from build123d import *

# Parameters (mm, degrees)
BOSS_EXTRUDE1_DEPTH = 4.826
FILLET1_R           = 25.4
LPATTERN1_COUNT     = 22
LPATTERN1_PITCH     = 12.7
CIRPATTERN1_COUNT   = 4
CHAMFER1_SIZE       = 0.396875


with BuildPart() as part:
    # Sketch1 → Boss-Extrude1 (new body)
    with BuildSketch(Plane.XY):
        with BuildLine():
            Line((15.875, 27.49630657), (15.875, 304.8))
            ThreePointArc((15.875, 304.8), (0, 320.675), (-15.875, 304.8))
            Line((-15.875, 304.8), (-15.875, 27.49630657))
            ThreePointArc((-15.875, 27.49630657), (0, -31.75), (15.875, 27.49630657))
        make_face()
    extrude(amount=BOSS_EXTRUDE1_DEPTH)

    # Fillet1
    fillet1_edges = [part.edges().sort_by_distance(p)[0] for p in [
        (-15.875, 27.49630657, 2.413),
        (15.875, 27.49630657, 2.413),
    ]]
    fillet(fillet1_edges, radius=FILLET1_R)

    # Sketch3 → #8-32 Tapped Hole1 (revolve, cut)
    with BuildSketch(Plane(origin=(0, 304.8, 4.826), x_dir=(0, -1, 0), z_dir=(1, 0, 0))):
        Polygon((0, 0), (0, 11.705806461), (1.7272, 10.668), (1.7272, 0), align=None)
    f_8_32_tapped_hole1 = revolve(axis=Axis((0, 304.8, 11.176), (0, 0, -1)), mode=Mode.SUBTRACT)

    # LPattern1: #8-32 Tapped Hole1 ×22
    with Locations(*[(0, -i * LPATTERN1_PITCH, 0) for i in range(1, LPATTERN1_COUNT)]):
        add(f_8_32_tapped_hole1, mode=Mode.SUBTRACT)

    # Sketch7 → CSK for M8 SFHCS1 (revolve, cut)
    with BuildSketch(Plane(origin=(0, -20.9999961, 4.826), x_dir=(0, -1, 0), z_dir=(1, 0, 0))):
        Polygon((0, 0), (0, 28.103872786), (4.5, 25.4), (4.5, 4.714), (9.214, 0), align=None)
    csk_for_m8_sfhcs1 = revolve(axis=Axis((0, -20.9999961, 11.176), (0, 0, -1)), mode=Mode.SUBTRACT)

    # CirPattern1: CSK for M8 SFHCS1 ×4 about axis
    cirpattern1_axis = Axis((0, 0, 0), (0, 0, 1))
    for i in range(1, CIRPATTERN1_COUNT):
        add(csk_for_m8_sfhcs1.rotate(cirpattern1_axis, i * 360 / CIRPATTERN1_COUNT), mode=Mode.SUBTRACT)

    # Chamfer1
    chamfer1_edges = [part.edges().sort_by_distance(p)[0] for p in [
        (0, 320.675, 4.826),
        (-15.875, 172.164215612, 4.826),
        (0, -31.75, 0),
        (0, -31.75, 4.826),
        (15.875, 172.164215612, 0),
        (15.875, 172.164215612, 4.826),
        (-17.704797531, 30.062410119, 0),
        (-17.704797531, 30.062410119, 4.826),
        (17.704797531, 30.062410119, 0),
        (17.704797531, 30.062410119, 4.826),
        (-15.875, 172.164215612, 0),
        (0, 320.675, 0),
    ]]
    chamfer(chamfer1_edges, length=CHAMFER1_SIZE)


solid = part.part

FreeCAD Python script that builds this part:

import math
import FreeCAD as App
import Part
import Sketcher

V = App.Vector
Q = App.Units.Quantity


def edges_at(feature, points):
    """Names of the edges that pass closest to the given points."""
    edges = feature.Shape.Edges
    near = lambda p: min(range(len(edges)), key=lambda i: edges[i].distToShape(Part.Vertex(*p))[0])
    return sorted({f"Edge{near(p) + 1}" for p in points})

doc = App.newDocument("Part")
params = doc.addObject("Spreadsheet::Sheet", "Params")
for row, (alias, value) in enumerate([
    ("sketch1_radius", "1.25 in"),
    ("sketch1_radius2", "0.625 in"),
    ("pad1_length", "0.19 in"),
    ("fillet_radius", "1 in"),
    ("sketch2_height", "0.42 in"),
    ("sketch2_width", "0.068 in"),
    ("groove_angle", "360 deg"),
    ("linearpattern_pitch", "0.5 in"),
    ("groove2_angle", "360 deg"),
    ("chamfer_size", "0.015625 in"),
], start=1):
    params.set(f"A{row}", alias)
    params.set(f"B{row}", "=" + value)
    params.setAlias(f"B{row}", alias)

body = doc.addObject("PartDesign::Body", "Body")

sketch1 = body.newObject("Sketcher::SketchObject", "Sketch")
sketch1.AttachmentSupport = (doc.getObject("XY_Plane"), [""])
sketch1.MapMode = "FlatFace"
sketch1.addGeometry([
    Part.LineSegment(V(16, 27, 0), V(16, 305, 0)),
    Part.ArcOfCircle(Part.Circle(V(0, 305, 0), V(0, 0, 1), 16), math.radians(0), math.radians(180)),
    Part.LineSegment(V(-16, 305, 0), V(-16, 27, 0)),
    Part.ArcOfCircle(Part.Circle(V(0, 0, 0), V(0, 0, 1), 32), math.radians(120), math.radians(420)),
], False)
sketch1.addConstraint([
    Sketcher.Constraint("Tangent", 0, 2, 1, 1),
    Sketcher.Constraint("Tangent", 1, 2, 2, 1),
    Sketcher.Constraint("Coincident", 2, 2, 3, 1),
    Sketcher.Constraint("Coincident", 3, 2, 0, 1),
    Sketcher.Constraint("Vertical", 0),
    Sketcher.Constraint("Vertical", 2),
    Sketcher.Constraint("Coincident", 3, 3, -1, 1),
    Sketcher.Constraint("PointOnObject", 1, 3, -2),
    Sketcher.Constraint("Radius", 3, Q("1.25 in")),
    Sketcher.Constraint("DistanceY", -1, 1, 1, 3, Q("12 in")),
    Sketcher.Constraint("Radius", 1, Q("0.625 in")),
])
sketch1.setExpression("Constraints[8]", "Params.sketch1_radius")
sketch1.setExpression("Constraints[10]", "Params.sketch1_radius2")
pad1 = body.newObject("PartDesign::Pad", "Pad")
pad1.Profile = sketch1
pad1.setExpression("Length", "Params.pad1_length")
doc.recompute()

fillet = body.newObject("PartDesign::Fillet", "Fillet")
fillet.Base = (pad1, edges_at(pad1, [(-15.875, 27.496, 2.413), (15.875, 27.496, 2.413)]))
fillet.setExpression("Radius", "Params.fillet_radius")

sketch2 = body.newObject("Sketcher::SketchObject", "Sketch001")
sketch2.AttachmentSupport = (doc.getObject("YZ_Plane"), [""])
sketch2.MapMode = "FlatFace"
sketch2.addGeometry([
    Part.LineSegment(V(304.8, -6.9, 0), V(304.8, 4.8, 0)),
    Part.LineSegment(V(304.8, 4.8, 0), V(303.1, 4.8, 0)),
    Part.LineSegment(V(303.1, 4.8, 0), V(303.1, -5.8, 0)),
    Part.LineSegment(V(303.1, -5.8, 0), V(304.8, -6.9, 0)),
], False)
sketch2.addGeometry(Part.LineSegment(V(304.8, 4.8, 0), V(304.8, -6.9, 0)), True)
sketch2.addConstraint([
    Sketcher.Constraint("Coincident", 0, 2, 1, 1),
    Sketcher.Constraint("Coincident", 1, 2, 2, 1),
    Sketcher.Constraint("Coincident", 2, 2, 3, 1),
    Sketcher.Constraint("Coincident", 3, 2, 0, 1),
    Sketcher.Constraint("Vertical", 0),
    Sketcher.Constraint("Horizontal", 1),
    Sketcher.Constraint("Vertical", 2),
    Sketcher.Constraint("Vertical", 4),
    Sketcher.Constraint("Coincident", 4, 1, 0, 2),
    Sketcher.Constraint("Equal", 0, 4),
    Sketcher.Constraint("DistanceX", -1, 1, 0, 2, Q("12 in")),
    Sketcher.Constraint("Angle", 3, Q("-31 deg")),
    Sketcher.Constraint("DistanceY", 2, 2, 2, 1, Q("0.42 in")),
    Sketcher.Constraint("DistanceX", 1, 2, 1, 1, Q("0.068 in")),
    Sketcher.Constraint("DistanceY", -1, 1, 0, 2, Q("0.19 in")),
])
sketch2.setExpression("Constraints[12]", "Params.sketch2_height")
sketch2.setExpression("Constraints[13]", "Params.sketch2_width")
groove = body.newObject("PartDesign::Groove", "Groove")
groove.Profile = sketch2
groove.ReferenceAxis = (sketch2, ["Axis0"])
groove.setExpression("Angle", "Params.groove_angle")
doc.recompute()

linearpattern = body.newObject("PartDesign::LinearPattern", "LinearPattern")
linearpattern.Originals = [groove]
linearpattern.Direction = (doc.getObject("Y_Axis"), [""])
linearpattern.Mode = "offset"
linearpattern.setExpression("Offset", "Params.linearpattern_pitch")
linearpattern.Occurrences = 22
linearpattern.Reversed = True
body.Tip = linearpattern

sketch3 = body.newObject("Sketcher::SketchObject", "Sketch002")
sketch3.AttachmentSupport = (doc.getObject("YZ_Plane"), [""])
sketch3.MapMode = "FlatFace"
sketch3.addGeometry([
    Part.LineSegment(V(-21, -23, 0), V(-21, 5, 0)),
    Part.LineSegment(V(-21, 5, 0), V(-30, 5, 0)),
    Part.LineSegment(V(-30, 5, 0), V(-25, 0, 0)),
    Part.LineSegment(V(-25, 0, 0), V(-25, -21, 0)),
    Part.LineSegment(V(-25, -21, 0), V(-21, -23, 0)),
], False)
sketch3.addGeometry(Part.LineSegment(V(-21, 5, 0), V(-21, -23, 0)), True)
sketch3.addConstraint([
    Sketcher.Constraint("Coincident", 0, 2, 1, 1),
    Sketcher.Constraint("Coincident", 1, 2, 2, 1),
    Sketcher.Constraint("Coincident", 2, 2, 3, 1),
    Sketcher.Constraint("Coincident", 3, 2, 4, 1),
    Sketcher.Constraint("Coincident", 4, 2, 0, 1),
    Sketcher.Constraint("Vertical", 0),
    Sketcher.Constraint("Horizontal", 1),
    Sketcher.Constraint("Vertical", 3),
    Sketcher.Constraint("Vertical", 5),
    Sketcher.Constraint("Coincident", 5, 1, 0, 2),
    Sketcher.Constraint("Equal", 0, 5),
    Sketcher.Constraint("Angle", 2, Q("-45 deg")),
    Sketcher.Constraint("Angle", 4, Q("-31 deg")),
    Sketcher.Constraint("DistanceY", 3, 2, 0, 2, Q("1 in")),
    Sketcher.Constraint("DistanceY", -1, 1, 0, 2, Q("0.19 in")),
    Sketcher.Constraint("DistanceX", 1, 2, 1, 1, 9.214),
    Sketcher.Constraint("DistanceY", 3, 2, 3, 1, 20.686),
    Sketcher.Constraint("DistanceX", 0, 2, -1, 1, 20.999996),
])
groove2 = body.newObject("PartDesign::Groove", "Groove001")
groove2.Profile = sketch3
groove2.ReferenceAxis = (sketch3, ["Axis0"])
groove2.setExpression("Angle", "Params.groove2_angle")
doc.recompute()

polarpattern = body.newObject("PartDesign::PolarPattern", "PolarPattern")
polarpattern.Originals = [groove2]
polarpattern.Axis = (doc.getObject("Z_Axis"), [""])
polarpattern.Angle = 360
polarpattern.Occurrences = 4
body.Tip = polarpattern
doc.recompute()

chamfer = body.newObject("PartDesign::Chamfer", "Chamfer")
chamfer.Base = (polarpattern, edges_at(polarpattern, [
    (0, 320.675, 4.826),
    (-15.875, 172.164, 4.826),
    (0, -31.75, 0),
    (0, -31.75, 4.826),
    (15.875, 172.164, 0),
    (15.875, 172.164, 4.826),
    (-17.705, 30.062, 0),
    (-17.705, 30.062, 4.826),
    (17.705, 30.062, 0),
    (17.705, 30.062, 4.826),
    (-15.875, 172.164, 0),
    (0, 320.675, 0),
]))
chamfer.setExpression("Size", "Params.chamfer_size")

doc.recompute()
